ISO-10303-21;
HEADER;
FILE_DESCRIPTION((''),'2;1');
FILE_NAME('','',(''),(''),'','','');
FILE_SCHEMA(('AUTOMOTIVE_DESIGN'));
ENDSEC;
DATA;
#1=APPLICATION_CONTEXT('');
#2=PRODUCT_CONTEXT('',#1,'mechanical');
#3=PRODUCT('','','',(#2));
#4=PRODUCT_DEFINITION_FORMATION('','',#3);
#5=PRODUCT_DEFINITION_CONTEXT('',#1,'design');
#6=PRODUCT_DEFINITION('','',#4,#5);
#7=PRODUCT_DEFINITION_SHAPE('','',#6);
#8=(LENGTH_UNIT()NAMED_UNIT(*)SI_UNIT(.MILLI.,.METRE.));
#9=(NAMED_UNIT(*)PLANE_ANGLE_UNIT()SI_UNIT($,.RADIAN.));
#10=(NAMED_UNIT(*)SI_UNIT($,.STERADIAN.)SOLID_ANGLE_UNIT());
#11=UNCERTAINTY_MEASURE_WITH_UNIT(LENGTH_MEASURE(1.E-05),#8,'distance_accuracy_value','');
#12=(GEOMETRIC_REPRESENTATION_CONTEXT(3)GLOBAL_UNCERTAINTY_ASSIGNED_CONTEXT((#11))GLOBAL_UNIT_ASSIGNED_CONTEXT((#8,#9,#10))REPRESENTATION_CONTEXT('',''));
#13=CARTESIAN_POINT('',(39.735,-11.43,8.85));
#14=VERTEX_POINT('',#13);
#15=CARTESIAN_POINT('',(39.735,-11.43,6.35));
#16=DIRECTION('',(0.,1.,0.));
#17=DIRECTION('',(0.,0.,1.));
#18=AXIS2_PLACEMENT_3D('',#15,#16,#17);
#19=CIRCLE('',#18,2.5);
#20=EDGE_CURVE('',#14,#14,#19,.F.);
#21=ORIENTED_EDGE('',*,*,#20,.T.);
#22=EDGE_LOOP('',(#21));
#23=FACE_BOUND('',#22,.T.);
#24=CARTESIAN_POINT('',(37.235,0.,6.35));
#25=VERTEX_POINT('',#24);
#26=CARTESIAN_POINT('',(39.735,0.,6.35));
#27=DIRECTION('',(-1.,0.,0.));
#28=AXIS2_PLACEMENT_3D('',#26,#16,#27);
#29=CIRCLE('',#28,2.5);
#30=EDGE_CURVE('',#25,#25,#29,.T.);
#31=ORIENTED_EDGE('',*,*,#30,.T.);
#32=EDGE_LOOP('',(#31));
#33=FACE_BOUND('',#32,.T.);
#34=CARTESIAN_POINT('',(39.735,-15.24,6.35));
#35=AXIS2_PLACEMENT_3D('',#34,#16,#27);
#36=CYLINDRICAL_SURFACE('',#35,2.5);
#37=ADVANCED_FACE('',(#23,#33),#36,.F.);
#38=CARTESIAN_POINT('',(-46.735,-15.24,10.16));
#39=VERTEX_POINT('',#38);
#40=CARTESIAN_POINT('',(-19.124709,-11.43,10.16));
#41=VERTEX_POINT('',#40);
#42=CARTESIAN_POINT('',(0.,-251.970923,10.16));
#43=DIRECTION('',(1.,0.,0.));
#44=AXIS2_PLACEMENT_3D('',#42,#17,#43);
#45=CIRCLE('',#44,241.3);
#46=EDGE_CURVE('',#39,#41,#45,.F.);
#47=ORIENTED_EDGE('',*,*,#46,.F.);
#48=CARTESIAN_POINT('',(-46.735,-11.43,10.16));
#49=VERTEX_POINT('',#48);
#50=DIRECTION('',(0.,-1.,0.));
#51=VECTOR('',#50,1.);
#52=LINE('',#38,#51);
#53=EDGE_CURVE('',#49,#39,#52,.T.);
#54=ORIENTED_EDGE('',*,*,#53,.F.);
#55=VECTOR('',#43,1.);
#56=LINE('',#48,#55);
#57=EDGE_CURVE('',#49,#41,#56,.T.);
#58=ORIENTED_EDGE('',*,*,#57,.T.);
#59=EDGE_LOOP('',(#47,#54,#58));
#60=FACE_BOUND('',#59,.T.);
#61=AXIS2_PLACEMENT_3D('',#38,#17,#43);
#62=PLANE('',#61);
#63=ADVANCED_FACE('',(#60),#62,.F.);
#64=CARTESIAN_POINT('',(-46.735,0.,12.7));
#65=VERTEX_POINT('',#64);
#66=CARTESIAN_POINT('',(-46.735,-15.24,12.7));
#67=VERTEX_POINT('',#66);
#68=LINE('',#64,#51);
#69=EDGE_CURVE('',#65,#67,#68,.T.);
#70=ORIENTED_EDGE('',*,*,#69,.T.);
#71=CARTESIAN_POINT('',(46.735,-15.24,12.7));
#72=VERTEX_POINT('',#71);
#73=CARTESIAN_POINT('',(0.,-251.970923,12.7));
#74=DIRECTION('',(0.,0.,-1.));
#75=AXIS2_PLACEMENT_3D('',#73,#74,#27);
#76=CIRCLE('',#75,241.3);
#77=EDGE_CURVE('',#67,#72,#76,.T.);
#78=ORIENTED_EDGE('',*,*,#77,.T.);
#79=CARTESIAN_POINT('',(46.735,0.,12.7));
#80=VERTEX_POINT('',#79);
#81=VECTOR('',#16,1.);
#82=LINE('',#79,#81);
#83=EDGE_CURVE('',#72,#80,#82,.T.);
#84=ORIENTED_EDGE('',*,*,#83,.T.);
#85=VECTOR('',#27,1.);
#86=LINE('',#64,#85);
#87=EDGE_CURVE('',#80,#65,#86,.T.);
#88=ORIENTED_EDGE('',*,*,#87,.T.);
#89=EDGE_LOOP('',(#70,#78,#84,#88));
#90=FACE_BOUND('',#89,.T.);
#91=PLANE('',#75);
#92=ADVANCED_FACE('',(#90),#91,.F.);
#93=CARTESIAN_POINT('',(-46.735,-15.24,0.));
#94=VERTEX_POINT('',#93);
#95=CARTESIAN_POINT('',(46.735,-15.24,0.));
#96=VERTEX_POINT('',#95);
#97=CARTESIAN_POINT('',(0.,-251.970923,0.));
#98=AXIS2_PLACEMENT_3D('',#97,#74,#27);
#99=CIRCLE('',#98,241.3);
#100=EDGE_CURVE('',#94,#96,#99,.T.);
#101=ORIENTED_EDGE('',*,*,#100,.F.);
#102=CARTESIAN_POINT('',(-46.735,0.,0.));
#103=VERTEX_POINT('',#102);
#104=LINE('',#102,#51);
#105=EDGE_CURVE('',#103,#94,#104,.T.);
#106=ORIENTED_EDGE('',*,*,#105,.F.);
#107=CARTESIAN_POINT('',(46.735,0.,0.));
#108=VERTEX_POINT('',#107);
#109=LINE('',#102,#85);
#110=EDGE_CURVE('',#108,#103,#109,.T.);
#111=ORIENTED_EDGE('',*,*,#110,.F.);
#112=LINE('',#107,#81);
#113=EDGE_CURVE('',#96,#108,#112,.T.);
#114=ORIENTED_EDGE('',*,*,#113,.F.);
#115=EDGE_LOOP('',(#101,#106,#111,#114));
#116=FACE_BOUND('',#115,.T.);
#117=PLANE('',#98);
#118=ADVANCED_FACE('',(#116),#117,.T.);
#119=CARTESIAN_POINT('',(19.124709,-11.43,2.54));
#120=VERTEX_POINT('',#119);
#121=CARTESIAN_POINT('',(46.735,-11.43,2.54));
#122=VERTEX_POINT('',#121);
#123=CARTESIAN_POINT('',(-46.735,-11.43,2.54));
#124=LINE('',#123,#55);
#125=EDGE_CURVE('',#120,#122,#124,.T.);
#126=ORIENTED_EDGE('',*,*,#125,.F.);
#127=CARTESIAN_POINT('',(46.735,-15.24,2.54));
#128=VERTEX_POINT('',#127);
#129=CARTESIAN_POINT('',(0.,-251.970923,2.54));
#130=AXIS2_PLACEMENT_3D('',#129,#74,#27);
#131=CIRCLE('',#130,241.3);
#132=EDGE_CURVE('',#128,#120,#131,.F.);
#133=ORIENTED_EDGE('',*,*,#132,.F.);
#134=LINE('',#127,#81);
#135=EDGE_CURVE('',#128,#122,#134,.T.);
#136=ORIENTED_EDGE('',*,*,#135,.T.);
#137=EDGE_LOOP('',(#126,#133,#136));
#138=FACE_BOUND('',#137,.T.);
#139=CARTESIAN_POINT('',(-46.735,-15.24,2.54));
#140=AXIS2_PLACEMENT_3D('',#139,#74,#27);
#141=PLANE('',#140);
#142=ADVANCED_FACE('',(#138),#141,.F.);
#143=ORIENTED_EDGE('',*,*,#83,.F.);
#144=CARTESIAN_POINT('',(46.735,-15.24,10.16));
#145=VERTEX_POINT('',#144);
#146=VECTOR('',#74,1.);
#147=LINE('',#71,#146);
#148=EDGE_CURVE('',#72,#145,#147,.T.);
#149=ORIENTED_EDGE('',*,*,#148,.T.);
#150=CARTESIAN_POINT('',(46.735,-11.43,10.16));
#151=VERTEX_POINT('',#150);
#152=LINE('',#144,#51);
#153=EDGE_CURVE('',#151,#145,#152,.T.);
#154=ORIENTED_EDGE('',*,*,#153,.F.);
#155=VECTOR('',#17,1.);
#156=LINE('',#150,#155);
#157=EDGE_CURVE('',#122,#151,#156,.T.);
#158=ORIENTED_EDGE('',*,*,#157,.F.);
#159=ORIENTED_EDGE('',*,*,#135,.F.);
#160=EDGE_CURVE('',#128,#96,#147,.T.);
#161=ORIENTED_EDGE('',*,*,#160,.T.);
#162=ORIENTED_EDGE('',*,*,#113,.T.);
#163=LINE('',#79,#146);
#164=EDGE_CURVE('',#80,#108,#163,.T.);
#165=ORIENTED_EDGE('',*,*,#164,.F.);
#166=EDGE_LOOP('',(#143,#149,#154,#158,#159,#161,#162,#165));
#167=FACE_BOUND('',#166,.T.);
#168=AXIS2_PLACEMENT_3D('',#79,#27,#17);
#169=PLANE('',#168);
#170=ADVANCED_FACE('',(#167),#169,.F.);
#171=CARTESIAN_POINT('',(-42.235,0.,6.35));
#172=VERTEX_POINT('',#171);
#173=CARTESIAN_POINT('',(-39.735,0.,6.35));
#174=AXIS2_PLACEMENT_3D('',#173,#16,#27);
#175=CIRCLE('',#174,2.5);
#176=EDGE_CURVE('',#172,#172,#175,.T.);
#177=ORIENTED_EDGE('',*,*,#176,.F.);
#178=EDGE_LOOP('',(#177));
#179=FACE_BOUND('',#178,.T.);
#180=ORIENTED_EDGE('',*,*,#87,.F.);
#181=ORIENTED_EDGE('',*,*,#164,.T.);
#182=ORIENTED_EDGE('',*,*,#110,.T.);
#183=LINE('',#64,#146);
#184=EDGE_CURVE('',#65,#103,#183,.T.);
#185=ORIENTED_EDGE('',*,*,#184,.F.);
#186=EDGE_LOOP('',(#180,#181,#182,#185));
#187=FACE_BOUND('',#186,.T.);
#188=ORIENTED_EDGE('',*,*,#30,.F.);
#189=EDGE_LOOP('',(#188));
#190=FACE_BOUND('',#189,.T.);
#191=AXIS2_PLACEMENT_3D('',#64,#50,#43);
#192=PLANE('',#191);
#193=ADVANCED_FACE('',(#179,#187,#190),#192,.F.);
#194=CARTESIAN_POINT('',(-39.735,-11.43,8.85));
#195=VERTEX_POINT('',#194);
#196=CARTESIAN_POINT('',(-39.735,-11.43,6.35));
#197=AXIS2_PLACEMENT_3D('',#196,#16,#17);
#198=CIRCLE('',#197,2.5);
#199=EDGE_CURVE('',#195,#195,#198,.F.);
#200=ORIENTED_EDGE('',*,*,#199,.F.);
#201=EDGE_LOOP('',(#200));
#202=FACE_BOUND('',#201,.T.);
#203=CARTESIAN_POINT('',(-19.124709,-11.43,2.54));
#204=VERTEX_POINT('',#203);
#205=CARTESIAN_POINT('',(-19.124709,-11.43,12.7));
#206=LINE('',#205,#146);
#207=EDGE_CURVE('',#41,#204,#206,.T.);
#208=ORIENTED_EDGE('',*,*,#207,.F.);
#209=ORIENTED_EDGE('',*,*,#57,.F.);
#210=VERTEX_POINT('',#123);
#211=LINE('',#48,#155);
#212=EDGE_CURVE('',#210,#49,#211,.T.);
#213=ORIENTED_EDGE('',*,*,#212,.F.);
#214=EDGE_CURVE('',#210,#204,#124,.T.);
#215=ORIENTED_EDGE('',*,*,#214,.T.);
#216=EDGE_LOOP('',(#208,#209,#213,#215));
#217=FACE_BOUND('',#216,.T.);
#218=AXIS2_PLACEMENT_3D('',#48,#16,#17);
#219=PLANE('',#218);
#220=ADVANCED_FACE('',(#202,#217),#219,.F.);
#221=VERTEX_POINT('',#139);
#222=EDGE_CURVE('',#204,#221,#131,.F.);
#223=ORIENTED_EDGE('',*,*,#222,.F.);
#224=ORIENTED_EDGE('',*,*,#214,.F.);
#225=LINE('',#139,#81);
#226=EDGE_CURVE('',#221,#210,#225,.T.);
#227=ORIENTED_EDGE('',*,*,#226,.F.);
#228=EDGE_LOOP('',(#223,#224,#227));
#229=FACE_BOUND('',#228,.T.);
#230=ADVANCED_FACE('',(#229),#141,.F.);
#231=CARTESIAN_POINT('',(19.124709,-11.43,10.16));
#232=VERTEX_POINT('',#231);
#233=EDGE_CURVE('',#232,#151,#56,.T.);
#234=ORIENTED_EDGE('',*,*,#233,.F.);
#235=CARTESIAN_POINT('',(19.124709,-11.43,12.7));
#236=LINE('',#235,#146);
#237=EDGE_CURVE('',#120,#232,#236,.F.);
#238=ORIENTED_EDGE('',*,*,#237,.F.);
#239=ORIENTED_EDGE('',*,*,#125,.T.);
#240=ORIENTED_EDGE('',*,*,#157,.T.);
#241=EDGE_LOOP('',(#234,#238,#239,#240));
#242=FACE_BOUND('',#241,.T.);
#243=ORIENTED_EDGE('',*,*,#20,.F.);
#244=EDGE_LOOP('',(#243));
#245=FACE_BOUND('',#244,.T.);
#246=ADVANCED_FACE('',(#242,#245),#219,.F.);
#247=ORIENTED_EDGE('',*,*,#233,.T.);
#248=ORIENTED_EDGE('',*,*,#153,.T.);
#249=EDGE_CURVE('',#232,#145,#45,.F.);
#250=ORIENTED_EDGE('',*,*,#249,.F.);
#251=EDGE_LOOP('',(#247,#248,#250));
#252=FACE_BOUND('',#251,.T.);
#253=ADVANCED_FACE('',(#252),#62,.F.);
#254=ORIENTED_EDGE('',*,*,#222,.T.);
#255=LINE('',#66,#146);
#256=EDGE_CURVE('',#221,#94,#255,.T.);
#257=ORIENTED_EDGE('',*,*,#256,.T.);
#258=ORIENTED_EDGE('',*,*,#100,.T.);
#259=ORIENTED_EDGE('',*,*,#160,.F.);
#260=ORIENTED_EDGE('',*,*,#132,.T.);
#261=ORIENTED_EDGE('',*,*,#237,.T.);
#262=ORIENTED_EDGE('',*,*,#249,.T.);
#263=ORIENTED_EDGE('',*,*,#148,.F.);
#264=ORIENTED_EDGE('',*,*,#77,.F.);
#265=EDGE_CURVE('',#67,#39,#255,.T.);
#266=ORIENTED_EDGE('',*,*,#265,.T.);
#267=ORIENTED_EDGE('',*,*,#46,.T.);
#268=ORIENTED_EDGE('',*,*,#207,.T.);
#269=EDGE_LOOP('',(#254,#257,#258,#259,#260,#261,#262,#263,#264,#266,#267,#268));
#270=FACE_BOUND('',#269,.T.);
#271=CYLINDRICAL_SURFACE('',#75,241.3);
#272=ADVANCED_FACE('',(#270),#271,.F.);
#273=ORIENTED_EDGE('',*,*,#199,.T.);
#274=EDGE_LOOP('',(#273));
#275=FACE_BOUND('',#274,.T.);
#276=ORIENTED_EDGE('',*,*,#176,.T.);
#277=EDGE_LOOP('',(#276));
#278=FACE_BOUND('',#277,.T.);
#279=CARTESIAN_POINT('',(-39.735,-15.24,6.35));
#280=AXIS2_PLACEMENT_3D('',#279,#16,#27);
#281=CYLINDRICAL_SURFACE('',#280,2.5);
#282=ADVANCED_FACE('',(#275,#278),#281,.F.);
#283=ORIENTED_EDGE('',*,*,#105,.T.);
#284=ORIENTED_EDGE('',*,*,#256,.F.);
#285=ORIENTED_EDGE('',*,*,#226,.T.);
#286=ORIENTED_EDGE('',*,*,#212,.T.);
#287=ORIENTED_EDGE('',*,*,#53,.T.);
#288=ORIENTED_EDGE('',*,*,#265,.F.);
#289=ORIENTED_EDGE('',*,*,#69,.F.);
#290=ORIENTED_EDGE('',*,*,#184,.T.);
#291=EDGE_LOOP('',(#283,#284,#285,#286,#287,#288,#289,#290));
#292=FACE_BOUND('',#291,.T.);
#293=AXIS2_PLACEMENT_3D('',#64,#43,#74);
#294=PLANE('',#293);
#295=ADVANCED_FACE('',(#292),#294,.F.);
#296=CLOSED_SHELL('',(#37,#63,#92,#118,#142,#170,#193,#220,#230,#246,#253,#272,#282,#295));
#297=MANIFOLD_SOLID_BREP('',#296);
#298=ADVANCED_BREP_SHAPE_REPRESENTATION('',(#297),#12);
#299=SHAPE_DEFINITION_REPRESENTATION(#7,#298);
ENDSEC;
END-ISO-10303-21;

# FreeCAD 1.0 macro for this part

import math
import FreeCAD as App
import Part
import Sketcher

V = App.Vector
Q = App.Units.Quantity

doc = App.newDocument("Part")
body = doc.addObject("PartDesign::Body", "Body")

sketch1 = body.newObject("Sketcher::SketchObject", "Sketch")
sketch1.AttachmentSupport = (doc.getObject("XY_Plane"), [""])
sketch1.MapMode = "FlatFace"
sketch1.addGeometry(Part.LineSegment(V(47, 0, 0), V(-47, 0, 0)), False)
sketch1.addGeometry(Part.LineSegment(V(-47, 0, 0), V(-47, -15, 0)), False)
sketch1.addGeometry(Part.ArcOfCircle(Part.Circle(V(0, -252, 0), V(0, 0, 1), 241), math.radians(79), math.radians(101)), False)
sketch1.addGeometry(Part.LineSegment(V(47, -15, 0), V(47, 0, 0)), False)
sketch1.addConstraint(Sketcher.Constraint("Coincident", 0, 2, 1, 1))
sketch1.addConstraint(Sketcher.Constraint("Coincident", 1, 2, 2, 2))
sketch1.addConstraint(Sketcher.Constraint("Coincident", 2, 1, 3, 1))
sketch1.addConstraint(Sketcher.Constraint("Coincident", 3, 2, 0, 1))
sketch1.addConstraint(Sketcher.Constraint("Horizontal", 0))
sketch1.addConstraint(Sketcher.Constraint("Vertical", 1))
sketch1.addConstraint(Sketcher.Constraint("Vertical", 3))
sketch1.addConstraint(Sketcher.Constraint("Symmetric", 0, 2, 3, 2, -1, 1))
sketch1.addConstraint(Sketcher.Constraint("PointOnObject", 2, 3, -2))
sketch1.addConstraint(Sketcher.Constraint("Radius", 2, Q("9.5 in")))
sketch1.addConstraint(Sketcher.Constraint("DistanceY", 1, 2, 1, 1, Q("0.6 in")))
sketch1.addConstraint(Sketcher.Constraint("DistanceX", 0, 2, 0, 1, Q("93.47 mm")))
pad1 = body.newObject("PartDesign::Pad", "Pad")
pad1.Profile = sketch1
pad1.Length = Q("0.5 in")

sketch2 = body.newObject("Sketcher::SketchObject", "Sketch001")
sketch2.AttachmentSupport = (doc.getObject("XZ_Plane"), [""])
sketch2.MapMode = "FlatFace"
sketch2.addGeometry(Part.Circle(V(-39.7, 6.3, 0), V(0, 0, 1), 2.5), False)
sketch2.addGeometry(Part.Circle(V(39.7, 6.3, 0), V(0, 0, 1), 2.5), False)
sketch2.addConstraint(Sketcher.Constraint("Equal", 0, 1))
sketch2.addConstraint(Sketcher.Constraint("Symmetric", 0, 3, 1, 3, -2))
sketch2.addConstraint(Sketcher.Constraint("Diameter", 0, Q("5 mm")))
sketch2.addConstraint(Sketcher.Constraint("DistanceY", -1, 1, 0, 3, Q("0.25 in")))
sketch2.addConstraint(Sketcher.Constraint("DistanceX", 0, 3, -1, 1, Q("39.735 mm")))
pocket1 = body.newObject("PartDesign::Pocket", "Pocket")
pocket1.Profile = sketch2
pocket1.Type = "ThroughAll"
pocket1.Reversed = True

sketch3 = body.newObject("Sketcher::SketchObject", "Sketch002")
sketch3.AttachmentSupport = (doc.getObject("YZ_Plane"), [""])
sketch3.MapMode = "FlatFace"
sketch3.AttachmentOffset = App.Placement(V(0, 0, 46.735), App.Rotation())
sketch3.addGeometry(Part.LineSegment(V(-11.4, 10.2, 0), V(-15.2, 10.2, 0)), False)
sketch3.addGeometry(Part.LineSegment(V(-15.2, 10.2, 0), V(-15.2, 2.5, 0)), False)
sketch3.addGeometry(Part.LineSegment(V(-15.2, 2.5, 0), V(-11.4, 2.5, 0)), False)
sketch3.addGeometry(Part.LineSegment(V(-11.4, 2.5, 0), V(-11.4, 10.2, 0)), False)
sketch3.addConstraint(Sketcher.Constraint("Coincident", 0, 2, 1, 1))
sketch3.addConstraint(Sketcher.Constraint("Coincident", 1, 2, 2, 1))
sketch3.addConstraint(Sketcher.Constraint("Coincident", 2, 2, 3, 1))
sketch3.addConstraint(Sketcher.Constraint("Coincident", 3, 2, 0, 1))
sketch3.addConstraint(Sketcher.Constraint("Horizontal", 0))
sketch3.addConstraint(Sketcher.Constraint("Vertical", 1))
sketch3.addConstraint(Sketcher.Constraint("Horizontal", 2))
sketch3.addConstraint(Sketcher.Constraint("Vertical", 3))
sketch3.addConstraint(Sketcher.Constraint("DistanceY", 1, 2, 1, 1, Q("0.3 in")))
sketch3.addConstraint(Sketcher.Constraint("DistanceX", 0, 2, 0, 1, Q("0.15 in")))
sketch3.addConstraint(Sketcher.Constraint("DistanceX", 0, 2, -1, 1, Q("0.6 in")))
sketch3.addConstraint(Sketcher.Constraint("DistanceY", -1, 1, 0, 2, Q("0.4 in")))
pocket2 = body.newObject("PartDesign::Pocket", "Pocket001")
pocket2.Profile = sketch3
pocket2.Type = "ThroughAll"

doc.recompute()
